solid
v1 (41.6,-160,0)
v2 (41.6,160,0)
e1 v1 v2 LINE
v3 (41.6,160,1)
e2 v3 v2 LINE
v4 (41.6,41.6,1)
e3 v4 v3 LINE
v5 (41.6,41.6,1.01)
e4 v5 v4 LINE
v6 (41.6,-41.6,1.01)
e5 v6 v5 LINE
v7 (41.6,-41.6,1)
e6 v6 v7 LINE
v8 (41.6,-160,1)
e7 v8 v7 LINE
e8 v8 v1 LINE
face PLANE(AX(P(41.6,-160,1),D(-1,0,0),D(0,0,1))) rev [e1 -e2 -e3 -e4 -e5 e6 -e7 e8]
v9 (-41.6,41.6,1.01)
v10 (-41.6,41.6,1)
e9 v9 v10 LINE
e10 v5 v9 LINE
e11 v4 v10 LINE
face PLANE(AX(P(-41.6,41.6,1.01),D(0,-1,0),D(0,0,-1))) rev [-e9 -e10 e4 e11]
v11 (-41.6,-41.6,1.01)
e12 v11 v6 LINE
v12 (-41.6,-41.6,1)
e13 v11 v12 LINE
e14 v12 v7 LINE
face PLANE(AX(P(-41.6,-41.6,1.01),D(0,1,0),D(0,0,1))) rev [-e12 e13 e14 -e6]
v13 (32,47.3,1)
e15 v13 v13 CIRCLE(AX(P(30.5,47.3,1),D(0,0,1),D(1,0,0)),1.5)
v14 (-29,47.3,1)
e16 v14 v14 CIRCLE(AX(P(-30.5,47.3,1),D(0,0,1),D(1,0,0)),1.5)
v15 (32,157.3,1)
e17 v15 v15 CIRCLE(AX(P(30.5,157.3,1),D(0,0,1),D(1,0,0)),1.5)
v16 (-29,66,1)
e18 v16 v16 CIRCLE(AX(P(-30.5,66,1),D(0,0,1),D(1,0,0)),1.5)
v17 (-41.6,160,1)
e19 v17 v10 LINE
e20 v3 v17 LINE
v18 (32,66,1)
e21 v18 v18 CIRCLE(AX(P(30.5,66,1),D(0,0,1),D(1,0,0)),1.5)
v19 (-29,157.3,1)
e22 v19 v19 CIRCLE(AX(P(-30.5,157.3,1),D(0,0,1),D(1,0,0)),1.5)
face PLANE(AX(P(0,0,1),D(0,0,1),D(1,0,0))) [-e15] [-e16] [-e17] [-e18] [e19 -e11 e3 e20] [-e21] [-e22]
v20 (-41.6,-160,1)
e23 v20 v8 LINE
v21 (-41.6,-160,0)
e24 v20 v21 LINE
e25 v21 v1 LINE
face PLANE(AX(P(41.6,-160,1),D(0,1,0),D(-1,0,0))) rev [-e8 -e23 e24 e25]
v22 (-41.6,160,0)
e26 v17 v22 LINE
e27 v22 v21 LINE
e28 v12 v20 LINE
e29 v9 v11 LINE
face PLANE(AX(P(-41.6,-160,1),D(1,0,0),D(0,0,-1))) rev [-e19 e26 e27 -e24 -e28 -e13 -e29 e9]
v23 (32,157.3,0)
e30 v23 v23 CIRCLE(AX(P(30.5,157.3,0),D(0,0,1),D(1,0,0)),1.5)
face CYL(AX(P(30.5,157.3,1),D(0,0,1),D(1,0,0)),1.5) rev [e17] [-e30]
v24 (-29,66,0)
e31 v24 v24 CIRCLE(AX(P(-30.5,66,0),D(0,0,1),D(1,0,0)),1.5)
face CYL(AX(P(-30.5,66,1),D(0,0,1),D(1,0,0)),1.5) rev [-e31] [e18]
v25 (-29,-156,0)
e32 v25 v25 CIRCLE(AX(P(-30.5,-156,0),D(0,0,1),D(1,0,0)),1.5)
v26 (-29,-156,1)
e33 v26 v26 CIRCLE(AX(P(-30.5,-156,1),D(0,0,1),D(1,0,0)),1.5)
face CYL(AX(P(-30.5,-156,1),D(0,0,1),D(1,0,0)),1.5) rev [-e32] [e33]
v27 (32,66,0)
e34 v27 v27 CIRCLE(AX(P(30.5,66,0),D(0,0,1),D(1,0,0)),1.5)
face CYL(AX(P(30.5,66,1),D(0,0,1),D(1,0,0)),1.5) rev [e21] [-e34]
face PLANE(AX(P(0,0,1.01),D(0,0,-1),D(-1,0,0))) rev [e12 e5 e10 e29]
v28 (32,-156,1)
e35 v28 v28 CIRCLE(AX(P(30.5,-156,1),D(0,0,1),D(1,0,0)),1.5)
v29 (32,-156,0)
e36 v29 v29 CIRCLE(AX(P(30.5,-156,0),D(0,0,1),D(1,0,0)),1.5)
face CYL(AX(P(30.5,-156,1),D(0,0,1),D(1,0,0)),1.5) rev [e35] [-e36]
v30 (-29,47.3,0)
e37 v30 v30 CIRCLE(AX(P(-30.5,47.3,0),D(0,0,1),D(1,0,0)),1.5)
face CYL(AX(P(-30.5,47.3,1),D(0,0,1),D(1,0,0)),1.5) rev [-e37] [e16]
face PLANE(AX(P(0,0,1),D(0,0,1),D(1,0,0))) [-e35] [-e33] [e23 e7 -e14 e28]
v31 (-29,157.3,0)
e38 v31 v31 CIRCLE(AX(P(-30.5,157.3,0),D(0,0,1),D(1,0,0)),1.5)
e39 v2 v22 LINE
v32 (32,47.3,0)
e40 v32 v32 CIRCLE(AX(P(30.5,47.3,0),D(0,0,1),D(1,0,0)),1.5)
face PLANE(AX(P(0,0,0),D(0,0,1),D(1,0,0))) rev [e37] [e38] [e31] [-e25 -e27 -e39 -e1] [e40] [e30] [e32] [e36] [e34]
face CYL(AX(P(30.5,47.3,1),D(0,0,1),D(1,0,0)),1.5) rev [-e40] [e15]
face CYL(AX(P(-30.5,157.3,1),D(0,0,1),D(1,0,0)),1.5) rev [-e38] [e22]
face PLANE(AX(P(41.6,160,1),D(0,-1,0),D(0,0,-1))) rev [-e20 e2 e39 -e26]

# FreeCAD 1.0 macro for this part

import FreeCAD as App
import Part
import Sketcher
Q = App.Units.Quantity


def add_polygon(sketch, points):
    """Adds a closed chain of lines whose ends are joined by coincident constraints."""
    first, n = sketch.GeometryCount, len(points)
    for a, b in zip(points, points[1:] + points[:1]):
        sketch.addGeometry(Part.LineSegment(App.Vector(*a, 0), App.Vector(*b, 0)), False)
    for i in range(n):
        sketch.addConstraint(Sketcher.Constraint("Coincident", first + i, 2, first + (i + 1) % n, 1))

doc = App.newDocument("Part")
body = doc.addObject("PartDesign::Body", "Body")

# Sketch on XY plane
sketch1 = body.newObject("Sketcher::SketchObject", "Sketch")
sketch1.AttachmentSupport = (doc.getObject("XY_Plane"), [""])
sketch1.MapMode = "FlatFace"
add_polygon(sketch1, [(-42, 160), (-42, -160), (42, -160), (42, 160)])  # lines 0-3
sketch1.addConstraint([
    Sketcher.Constraint("Vertical", 0),
    Sketcher.Constraint("Horizontal", 1),
    Sketcher.Constraint("Vertical", 2),
    Sketcher.Constraint("Horizontal", 3),
    Sketcher.Constraint("Symmetric", 0, 2, 2, 2, -1, 1),
    Sketcher.Constraint("DistanceY", 0, 2, 0, 1, Q("320 mm")),
    Sketcher.Constraint("DistanceX", 1, 1, 1, 2, Q("83.2 mm")),
])
pad1 = body.newObject("PartDesign::Pad", "Pad")
pad1.Profile = sketch1
pad1.Length = 1

# Sketch on XY plane
sketch2 = body.newObject("Sketcher::SketchObject", "Sketch001")
sketch2.AttachmentSupport = (doc.getObject("XY_Plane"), [""])
sketch2.MapMode = "FlatFace"
sketch2.AttachmentOffset = App.Placement(App.Vector(0, 0, 1), App.Rotation())
sketch2.addGeometry([
    Part.Circle(App.Vector(-30.5, 66, 0), App.Vector(0, 0, 1), 1.5),  # 0
    Part.Circle(App.Vector(30.5, 66, 0), App.Vector(0, 0, 1), 1.5),  # 1
    Part.Circle(App.Vector(30.5, -156, 0), App.Vector(0, 0, 1), 1.5),  # 2
    Part.Circle(App.Vector(-30.5, -156, 0), App.Vector(0, 0, 1), 1.5),  # 3
    Part.Circle(App.Vector(-30.5, 157.3, 0), App.Vector(0, 0, 1), 1.5),  # 4
    Part.Circle(App.Vector(30.5, 157.3, 0), App.Vector(0, 0, 1), 1.5),  # 5
    Part.Circle(App.Vector(-30.5, 47.3, 0), App.Vector(0, 0, 1), 1.5),  # 6
    Part.Circle(App.Vector(30.5, 47.3, 0), App.Vector(0, 0, 1), 1.5),  # 7
], False)
sketch2.addConstraint([
    Sketcher.Constraint("Equal", 0, 1),
    Sketcher.Constraint("Equal", 1, 2),
    Sketcher.Constraint("Equal", 2, 3),
    Sketcher.Constraint("Equal", 3, 4),
    Sketcher.Constraint("Equal", 4, 5),
    Sketcher.Constraint("Equal", 5, 6),
    Sketcher.Constraint("Equal", 6, 7),
    Sketcher.Constraint("Symmetric", 0, 3, 1, 3, -2),
    Sketcher.Constraint("Symmetric", 2, 3, 3, 3, -2),
    Sketcher.Constraint("Symmetric", 4, 3, 5, 3, -2),
    Sketcher.Constraint("Symmetric", 6, 3, 7, 3, -2),
    Sketcher.Constraint("Vertical", 1, 3, 2, 3),
    Sketcher.Constraint("Vertical", 3, 3, 4, 3),
    Sketcher.Constraint("Vertical", 4, 3, 6, 3),
    Sketcher.Constraint("Diameter", 0, Q("3 mm")),
    Sketcher.Constraint("DistanceY", -1, 1, 0, 3, Q("66 mm")),
    Sketcher.Constraint("DistanceY", 2, 3, -1, 1, Q("156 mm")),
    Sketcher.Constraint("DistanceX", 0, 3, 1, 3, Q("61 mm")),
    Sketcher.Constraint("DistanceY", 6, 3, 4, 3, Q("110 mm")),
    Sketcher.Constraint("DistanceY", -1, 1, 4, 3, Q("157.3 mm")),
])
doc.recompute()
hole = body.newObject("PartDesign::Hole", "Hole")
hole.Profile = sketch2
hole.ThreadType = "None"
hole.Diameter = 3
hole.DepthType = "ThroughAll"

# Sketch on XY plane
sketch3 = body.newObject("Sketcher::SketchObject", "Sketch002")
sketch3.AttachmentSupport = (doc.getObject("XY_Plane"), [""])
sketch3.MapMode = "FlatFace"
sketch3.AttachmentOffset = App.Placement(App.Vector(0, 0, 1), App.Rotation())
add_polygon(sketch3, [(-42, 42), (-42, -42), (42, -42), (42, 42)])  # lines 0-3
sketch3.addConstraint([
    Sketcher.Constraint("Vertical", 0),
    Sketcher.Constraint("Horizontal", 1),
    Sketcher.Constraint("Vertical", 2),
    Sketcher.Constraint("Horizontal", 3),
    Sketcher.Constraint("Symmetric", 0, 2, 2, 2, -1, 1),
    Sketcher.Constraint("Equal", 3, 0),
    Sketcher.Constraint("DistanceX", 1, 1, 1, 2, Q("83.2 mm")),
])
pad2 = body.newObject("PartDesign::Pad", "Pad001")
pad2.Profile = sketch3
pad2.Length = 0.01

doc.recompute()
